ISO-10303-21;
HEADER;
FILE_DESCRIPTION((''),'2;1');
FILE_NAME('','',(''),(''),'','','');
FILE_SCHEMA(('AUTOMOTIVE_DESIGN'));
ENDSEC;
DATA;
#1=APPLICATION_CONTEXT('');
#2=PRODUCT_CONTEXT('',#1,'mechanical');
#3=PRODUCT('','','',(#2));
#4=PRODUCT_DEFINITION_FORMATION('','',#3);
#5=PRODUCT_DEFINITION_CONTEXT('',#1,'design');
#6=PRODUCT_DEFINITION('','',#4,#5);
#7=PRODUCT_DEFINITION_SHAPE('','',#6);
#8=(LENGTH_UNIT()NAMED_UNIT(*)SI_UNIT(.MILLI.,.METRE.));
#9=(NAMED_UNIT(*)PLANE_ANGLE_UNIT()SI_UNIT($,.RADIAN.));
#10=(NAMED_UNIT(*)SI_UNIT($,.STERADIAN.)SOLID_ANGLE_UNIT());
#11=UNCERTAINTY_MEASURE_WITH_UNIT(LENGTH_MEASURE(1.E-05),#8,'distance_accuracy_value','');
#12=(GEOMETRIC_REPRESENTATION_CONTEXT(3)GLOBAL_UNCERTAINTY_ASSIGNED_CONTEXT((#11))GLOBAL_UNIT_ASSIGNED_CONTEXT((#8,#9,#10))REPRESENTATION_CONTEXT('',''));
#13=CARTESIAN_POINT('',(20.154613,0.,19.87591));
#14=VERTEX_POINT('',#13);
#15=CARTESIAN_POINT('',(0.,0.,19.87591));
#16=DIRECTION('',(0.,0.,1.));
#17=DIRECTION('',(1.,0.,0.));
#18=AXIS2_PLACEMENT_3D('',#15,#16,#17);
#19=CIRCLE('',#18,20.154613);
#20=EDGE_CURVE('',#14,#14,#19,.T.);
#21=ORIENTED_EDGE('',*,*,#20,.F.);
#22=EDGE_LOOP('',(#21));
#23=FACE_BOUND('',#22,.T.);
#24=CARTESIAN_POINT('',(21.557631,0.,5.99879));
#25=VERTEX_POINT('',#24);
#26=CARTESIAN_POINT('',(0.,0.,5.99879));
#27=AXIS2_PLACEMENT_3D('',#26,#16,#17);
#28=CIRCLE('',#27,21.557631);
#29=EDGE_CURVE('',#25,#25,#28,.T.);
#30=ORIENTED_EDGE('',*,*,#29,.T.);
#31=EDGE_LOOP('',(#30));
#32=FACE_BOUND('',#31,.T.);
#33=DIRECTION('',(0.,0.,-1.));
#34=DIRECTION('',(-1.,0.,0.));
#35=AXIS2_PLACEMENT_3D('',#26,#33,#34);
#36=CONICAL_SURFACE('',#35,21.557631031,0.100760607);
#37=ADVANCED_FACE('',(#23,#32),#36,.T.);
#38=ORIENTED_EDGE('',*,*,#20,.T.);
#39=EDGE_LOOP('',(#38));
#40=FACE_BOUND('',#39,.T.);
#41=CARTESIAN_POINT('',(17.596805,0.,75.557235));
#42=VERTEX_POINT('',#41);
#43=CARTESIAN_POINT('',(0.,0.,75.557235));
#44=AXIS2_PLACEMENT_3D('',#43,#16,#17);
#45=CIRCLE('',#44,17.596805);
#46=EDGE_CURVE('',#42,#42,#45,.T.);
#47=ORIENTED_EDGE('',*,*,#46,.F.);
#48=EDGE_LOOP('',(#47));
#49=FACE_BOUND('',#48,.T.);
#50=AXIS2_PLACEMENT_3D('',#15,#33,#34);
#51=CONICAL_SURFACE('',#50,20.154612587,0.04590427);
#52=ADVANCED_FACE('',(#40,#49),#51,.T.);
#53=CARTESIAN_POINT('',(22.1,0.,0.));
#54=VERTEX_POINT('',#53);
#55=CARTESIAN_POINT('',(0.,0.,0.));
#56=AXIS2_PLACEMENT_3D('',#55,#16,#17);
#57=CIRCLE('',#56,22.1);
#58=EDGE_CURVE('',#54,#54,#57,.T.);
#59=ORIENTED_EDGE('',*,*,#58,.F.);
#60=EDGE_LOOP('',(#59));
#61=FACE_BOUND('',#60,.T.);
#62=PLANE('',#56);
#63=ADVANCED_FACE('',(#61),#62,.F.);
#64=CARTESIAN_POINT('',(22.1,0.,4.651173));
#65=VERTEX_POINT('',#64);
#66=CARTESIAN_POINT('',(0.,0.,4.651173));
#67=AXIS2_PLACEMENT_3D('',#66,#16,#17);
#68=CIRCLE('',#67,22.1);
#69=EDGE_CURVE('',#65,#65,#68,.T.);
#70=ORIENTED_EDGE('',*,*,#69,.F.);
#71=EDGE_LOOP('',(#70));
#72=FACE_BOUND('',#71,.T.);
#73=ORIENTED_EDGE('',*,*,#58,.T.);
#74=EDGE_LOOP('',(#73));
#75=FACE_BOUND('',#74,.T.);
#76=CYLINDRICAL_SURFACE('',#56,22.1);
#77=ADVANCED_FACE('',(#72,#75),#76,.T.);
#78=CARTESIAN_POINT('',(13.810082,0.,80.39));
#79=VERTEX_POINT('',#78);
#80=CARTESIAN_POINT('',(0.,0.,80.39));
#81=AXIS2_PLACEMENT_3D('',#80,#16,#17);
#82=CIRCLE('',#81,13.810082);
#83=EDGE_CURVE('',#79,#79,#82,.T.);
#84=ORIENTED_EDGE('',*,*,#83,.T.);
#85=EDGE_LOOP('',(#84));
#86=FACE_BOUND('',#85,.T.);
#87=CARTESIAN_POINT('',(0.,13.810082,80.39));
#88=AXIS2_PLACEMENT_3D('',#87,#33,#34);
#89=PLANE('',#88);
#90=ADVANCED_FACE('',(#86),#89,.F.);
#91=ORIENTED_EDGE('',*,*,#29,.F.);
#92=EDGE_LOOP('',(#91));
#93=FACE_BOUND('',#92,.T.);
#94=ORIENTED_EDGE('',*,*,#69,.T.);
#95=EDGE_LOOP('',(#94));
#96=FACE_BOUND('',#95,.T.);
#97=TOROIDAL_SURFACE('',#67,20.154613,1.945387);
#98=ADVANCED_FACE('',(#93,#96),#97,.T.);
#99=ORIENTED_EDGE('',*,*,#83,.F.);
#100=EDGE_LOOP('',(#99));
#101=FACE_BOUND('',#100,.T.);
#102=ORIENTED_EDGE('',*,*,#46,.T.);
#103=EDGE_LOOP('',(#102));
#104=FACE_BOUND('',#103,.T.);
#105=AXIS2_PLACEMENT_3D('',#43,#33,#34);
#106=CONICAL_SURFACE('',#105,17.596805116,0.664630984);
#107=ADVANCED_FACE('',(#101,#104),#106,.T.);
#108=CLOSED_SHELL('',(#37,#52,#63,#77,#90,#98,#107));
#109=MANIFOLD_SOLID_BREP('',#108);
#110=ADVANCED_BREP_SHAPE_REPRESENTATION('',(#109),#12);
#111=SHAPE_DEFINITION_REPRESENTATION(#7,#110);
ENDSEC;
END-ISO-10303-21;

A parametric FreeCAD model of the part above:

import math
import FreeCAD as App
import Part
import Sketcher
Q = App.Units.Quantity

doc = App.newDocument("Part")
body = doc.addObject("PartDesign::Body", "Body")

# Sketch on YZ plane
sketch1 = body.newObject("Sketcher::SketchObject", "Sketch")
sketch1.AttachmentSupport = (doc.getObject("YZ_Plane"), [""])
sketch1.MapMode = "FlatFace"
sketch1.addGeometry([
    Part.LineSegment(App.Vector(0, 0, 0), App.Vector(22.1, 0, 0)),  # 0
    Part.LineSegment(App.Vector(22.1, 0, 0), App.Vector(22.1, 4.7, 0)),  # 1
    Part.ArcOfCircle(Part.Circle(App.Vector(20.2, 4.7, 0), App.Vector(0, 0, 1), 1.9), math.radians(0), math.radians(44)),  # 2
    Part.LineSegment(App.Vector(21.6, 6, 0), App.Vector(20.2, 19.9, 0)),  # 3
    Part.LineSegment(App.Vector(20.2, 19.9, 0), App.Vector(17.6, 75.6, 0)),  # 4
    Part.LineSegment(App.Vector(17.6, 75.6, 0), App.Vector(13.8, 80.4, 0)),  # 5
    Part.LineSegment(App.Vector(13.8, 80.4, 0), App.Vector(0, 80.4, 0)),  # 6
    Part.LineSegment(App.Vector(0, 80.4, 0), App.Vector(0, 0, 0)),  # 7
], False)
sketch1.addConstraint([
    Sketcher.Constraint("Coincident", 0, 2, 1, 1),
    Sketcher.Constraint("Tangent", 1, 2, 2, 1),
    Sketcher.Constraint("Coincident", 2, 2, 3, 1),
    Sketcher.Constraint("Coincident", 3, 2, 4, 1),
    Sketcher.Constraint("Coincident", 4, 2, 5, 1),
    Sketcher.Constraint("Coincident", 5, 2, 6, 1),
    Sketcher.Constraint("Coincident", 6, 2, 7, 1),
    Sketcher.Constraint("Coincident", 7, 2, 0, 1),
    Sketcher.Constraint("Horizontal", 0),
    Sketcher.Constraint("Vertical", 1),
    Sketcher.Constraint("Horizontal", 6),
    Sketcher.Constraint("Vertical", 7),
    Sketcher.Constraint("Coincident", 7, 2, -1, 1),
    Sketcher.Constraint("Vertical", 2, 3, 3, 2),
    Sketcher.Constraint("DistanceX", 0, 1, 0, 2, Q("22.1 mm")),
    Sketcher.Constraint("DistanceY", 7, 2, 7, 1, Q("80.39 mm")),
    Sketcher.Constraint("Radius", 2, Q("1.945387 mm")),
    Sketcher.Constraint("DistanceX", 6, 2, 6, 1, Q("13.810082 mm")),
    Sketcher.Constraint("DistanceY", 1, 1, 1, 2, Q("4.651173 mm")),
    Sketcher.Constraint("DistanceX", -1, 1, 2, 2, Q("21.557631 mm")),
    Sketcher.Constraint("DistanceY", -1, 1, 3, 2, Q("19.87591 mm")),
    Sketcher.Constraint("Distance", 4, Q("55.740043 mm")),
    Sketcher.Constraint("Distance", 5, Q("6.139616 mm")),
])
revolution = body.newObject("PartDesign::Revolution", "Revolution")
revolution.Profile = sketch1
revolution.ReferenceAxis = (sketch1, ["V_Axis"])
revolution.Angle = 360

doc.recompute()
